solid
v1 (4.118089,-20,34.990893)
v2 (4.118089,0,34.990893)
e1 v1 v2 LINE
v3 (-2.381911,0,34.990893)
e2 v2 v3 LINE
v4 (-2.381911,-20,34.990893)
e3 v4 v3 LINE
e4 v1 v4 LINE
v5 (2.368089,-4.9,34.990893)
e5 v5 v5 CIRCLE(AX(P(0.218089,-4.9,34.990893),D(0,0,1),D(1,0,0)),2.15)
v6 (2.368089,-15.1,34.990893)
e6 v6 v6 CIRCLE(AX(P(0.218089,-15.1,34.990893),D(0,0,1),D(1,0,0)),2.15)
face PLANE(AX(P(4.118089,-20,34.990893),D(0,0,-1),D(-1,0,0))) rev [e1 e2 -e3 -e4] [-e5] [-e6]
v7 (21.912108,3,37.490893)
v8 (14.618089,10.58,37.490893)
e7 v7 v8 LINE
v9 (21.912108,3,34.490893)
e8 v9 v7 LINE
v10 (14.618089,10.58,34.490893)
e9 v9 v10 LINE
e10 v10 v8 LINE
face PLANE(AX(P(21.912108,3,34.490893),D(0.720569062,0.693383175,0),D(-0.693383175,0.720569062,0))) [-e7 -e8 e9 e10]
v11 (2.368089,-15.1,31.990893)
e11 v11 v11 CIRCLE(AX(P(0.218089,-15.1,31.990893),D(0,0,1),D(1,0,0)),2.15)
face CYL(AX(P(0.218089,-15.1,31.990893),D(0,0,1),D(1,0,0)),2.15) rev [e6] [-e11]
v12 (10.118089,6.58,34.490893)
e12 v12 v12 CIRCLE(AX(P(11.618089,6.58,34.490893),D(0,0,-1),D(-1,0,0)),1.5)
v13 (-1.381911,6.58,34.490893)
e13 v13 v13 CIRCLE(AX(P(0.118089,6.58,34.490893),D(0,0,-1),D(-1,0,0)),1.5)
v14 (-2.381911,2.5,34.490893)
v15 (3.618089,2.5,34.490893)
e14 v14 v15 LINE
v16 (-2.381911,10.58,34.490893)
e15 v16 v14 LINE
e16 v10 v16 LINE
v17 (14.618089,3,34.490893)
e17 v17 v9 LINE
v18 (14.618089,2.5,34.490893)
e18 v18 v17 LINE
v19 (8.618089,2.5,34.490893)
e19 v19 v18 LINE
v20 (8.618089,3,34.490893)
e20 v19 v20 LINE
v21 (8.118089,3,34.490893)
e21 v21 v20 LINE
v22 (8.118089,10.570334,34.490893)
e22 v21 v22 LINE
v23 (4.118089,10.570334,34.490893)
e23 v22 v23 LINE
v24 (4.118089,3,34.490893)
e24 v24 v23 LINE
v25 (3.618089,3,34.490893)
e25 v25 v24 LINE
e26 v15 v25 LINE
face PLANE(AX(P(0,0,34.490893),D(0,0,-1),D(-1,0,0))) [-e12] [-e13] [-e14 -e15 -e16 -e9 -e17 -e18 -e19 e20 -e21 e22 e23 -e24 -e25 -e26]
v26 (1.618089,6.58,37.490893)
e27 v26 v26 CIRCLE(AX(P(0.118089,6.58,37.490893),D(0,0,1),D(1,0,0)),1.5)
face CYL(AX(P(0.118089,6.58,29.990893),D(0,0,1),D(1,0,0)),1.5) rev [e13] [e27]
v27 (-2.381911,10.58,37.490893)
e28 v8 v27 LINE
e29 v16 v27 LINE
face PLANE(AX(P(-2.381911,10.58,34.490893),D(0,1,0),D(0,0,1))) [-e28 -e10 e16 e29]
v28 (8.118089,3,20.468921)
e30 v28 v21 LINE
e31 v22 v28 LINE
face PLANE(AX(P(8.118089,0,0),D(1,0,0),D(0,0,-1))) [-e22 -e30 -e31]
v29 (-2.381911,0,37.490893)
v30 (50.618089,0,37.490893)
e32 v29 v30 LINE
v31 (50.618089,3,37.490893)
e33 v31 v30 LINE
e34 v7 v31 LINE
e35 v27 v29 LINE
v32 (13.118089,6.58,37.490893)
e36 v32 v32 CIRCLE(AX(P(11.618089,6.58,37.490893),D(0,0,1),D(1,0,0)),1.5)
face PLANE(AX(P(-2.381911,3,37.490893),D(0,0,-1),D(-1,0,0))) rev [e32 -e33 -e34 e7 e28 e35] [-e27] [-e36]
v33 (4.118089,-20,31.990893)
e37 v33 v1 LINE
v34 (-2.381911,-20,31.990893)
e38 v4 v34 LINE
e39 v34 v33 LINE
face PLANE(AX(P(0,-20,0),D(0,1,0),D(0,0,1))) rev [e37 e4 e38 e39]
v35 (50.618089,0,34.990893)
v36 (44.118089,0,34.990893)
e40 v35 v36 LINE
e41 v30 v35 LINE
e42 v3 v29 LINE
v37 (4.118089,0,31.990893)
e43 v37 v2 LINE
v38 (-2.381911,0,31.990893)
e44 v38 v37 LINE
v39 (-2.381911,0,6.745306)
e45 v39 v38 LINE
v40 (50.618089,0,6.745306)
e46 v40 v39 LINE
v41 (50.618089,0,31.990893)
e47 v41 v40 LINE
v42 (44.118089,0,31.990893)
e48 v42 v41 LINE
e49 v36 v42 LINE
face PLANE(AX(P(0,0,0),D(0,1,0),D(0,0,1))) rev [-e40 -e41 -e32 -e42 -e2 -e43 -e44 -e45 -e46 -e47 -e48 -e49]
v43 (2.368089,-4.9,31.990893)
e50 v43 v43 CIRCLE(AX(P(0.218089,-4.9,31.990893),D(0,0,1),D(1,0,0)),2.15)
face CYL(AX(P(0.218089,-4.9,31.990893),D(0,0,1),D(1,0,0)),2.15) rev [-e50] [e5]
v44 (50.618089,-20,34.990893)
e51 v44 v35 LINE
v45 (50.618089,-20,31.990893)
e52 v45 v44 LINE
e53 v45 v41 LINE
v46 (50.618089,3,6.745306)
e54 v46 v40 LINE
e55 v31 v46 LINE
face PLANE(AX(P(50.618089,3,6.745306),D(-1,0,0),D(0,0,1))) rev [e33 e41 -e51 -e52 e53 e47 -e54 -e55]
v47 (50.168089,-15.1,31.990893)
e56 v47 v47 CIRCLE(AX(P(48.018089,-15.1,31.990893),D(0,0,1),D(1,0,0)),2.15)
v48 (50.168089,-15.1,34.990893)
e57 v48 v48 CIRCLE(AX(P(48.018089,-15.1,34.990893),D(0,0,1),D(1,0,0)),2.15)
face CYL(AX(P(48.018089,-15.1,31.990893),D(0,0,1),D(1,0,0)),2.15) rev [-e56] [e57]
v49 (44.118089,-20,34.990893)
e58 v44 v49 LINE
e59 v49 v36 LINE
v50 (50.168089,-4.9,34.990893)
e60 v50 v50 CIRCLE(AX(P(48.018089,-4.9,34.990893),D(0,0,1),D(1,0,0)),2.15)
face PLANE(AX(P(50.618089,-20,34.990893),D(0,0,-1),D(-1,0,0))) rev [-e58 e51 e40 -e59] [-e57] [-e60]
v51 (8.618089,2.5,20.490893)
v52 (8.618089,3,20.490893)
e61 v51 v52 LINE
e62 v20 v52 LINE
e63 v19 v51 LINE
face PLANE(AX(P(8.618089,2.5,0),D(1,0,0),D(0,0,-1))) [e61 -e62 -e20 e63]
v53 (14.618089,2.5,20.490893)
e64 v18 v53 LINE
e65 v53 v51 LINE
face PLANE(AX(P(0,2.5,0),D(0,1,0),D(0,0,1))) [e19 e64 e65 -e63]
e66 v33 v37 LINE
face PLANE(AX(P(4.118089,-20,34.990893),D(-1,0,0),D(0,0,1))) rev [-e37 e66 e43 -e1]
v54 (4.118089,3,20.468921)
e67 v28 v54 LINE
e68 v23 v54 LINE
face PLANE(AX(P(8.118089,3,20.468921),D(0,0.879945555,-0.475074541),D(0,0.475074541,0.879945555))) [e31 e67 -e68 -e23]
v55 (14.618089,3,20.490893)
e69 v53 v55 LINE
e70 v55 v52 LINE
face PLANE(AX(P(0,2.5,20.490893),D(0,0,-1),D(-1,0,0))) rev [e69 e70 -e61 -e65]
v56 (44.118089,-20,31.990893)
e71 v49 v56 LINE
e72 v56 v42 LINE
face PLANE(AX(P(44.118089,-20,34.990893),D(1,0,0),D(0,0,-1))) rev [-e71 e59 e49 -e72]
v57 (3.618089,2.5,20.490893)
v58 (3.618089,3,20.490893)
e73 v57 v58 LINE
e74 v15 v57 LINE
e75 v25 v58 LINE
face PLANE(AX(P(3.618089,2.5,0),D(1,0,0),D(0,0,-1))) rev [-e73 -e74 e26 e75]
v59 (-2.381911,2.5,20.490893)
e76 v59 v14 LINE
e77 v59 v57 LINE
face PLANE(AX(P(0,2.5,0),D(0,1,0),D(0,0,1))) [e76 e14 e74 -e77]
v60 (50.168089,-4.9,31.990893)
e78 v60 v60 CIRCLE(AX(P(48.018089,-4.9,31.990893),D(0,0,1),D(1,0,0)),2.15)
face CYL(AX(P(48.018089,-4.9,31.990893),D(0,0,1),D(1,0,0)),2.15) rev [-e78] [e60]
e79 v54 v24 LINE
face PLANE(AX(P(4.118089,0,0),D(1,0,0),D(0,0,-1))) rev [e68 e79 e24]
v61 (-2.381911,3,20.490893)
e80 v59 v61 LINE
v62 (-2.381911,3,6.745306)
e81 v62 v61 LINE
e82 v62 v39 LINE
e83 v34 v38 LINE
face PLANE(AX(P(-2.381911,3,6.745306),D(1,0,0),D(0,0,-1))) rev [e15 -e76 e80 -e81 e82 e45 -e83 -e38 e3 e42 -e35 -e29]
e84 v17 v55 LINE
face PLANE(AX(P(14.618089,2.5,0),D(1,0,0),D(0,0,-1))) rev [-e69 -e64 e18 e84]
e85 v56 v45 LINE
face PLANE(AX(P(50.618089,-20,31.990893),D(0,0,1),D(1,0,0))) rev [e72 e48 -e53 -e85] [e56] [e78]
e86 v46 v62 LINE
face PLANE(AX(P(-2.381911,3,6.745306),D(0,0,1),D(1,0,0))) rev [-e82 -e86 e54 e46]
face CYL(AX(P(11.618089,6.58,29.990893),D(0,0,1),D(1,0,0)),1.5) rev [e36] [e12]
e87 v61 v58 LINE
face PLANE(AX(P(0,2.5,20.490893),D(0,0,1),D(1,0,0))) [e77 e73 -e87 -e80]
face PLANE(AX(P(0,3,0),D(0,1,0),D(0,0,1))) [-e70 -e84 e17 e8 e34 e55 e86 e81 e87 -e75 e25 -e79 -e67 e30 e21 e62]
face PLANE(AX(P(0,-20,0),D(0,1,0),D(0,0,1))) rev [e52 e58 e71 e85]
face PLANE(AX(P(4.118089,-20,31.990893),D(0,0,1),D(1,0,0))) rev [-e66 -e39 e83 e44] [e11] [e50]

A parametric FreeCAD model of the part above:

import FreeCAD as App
import Part
import Sketcher
from FreeCAD import Vector
Q = App.Units.Quantity


def add_polygon(sketch, points):
    """Adds a closed chain of lines whose ends are joined by coincident constraints."""
    first, n = sketch.GeometryCount, len(points)
    for a, b in zip(points, points[1:] + points[:1]):
        sketch.addGeometry(Part.LineSegment(App.Vector(*a, 0), App.Vector(*b, 0)), False)
    for i in range(n):
        sketch.addConstraint(Sketcher.Constraint("Coincident", first + i, 2, first + (i + 1) % n, 1))

doc = App.newDocument("Part")
params = doc.addObject("Spreadsheet::Sheet", "Params")
for row, (alias, value) in enumerate([
    ("sketch1_width", "53 mm"),
    ("pad1_length", "3 mm"),
    ("sketch2_height", "3 mm"),
    ("sketch2_width", "6.5 mm"),
    ("pad2_length", "20 mm"),
    ("sketch3_diameter", "4.3 mm"),
    ("pocket1_length", "3 mm"),
    ("sketch4_width", "17 mm"),
    ("sketch4_height", "7.58 mm"),
    ("pad3_length", "3 mm"),
    ("sketch5_diameter", "3 mm"),
    ("pocket2_length", "7.5 mm"),
    ("sketch6_width", "6 mm"),
    ("sketch6_height", "14 mm"),
    ("pocket3_length", "0.5 mm"),
    ("pad4_length", "2 mm"),
    ("pad4_length2", "2 mm"),
    ("sketch8_height", "7.58 mm"),
    ("pad5_length", "3 mm"),
], start=1):
    params.set(f"A{row}", alias)
    params.set(f"B{row}", "=" + value)
    params.setAlias(f"B{row}", alias)

body = doc.addObject("PartDesign::Body", "Body")

sketch1 = body.newObject("Sketcher::SketchObject", "Sketch")
sketch1.AttachmentSupport = (doc.getObject("XZ_Plane"), [""])
sketch1.MapMode = "FlatFace"
add_polygon(sketch1, [(-2.381911, 6.745306), (-2.381911, 37.490893), (50.618089, 37.490893), (50.618089, 6.745306)])
sketch1.addConstraint([
    Sketcher.Constraint("Vertical", 0),
    Sketcher.Constraint("Horizontal", 1),
    Sketcher.Constraint("Vertical", 2),
    Sketcher.Constraint("Horizontal", 3),
    Sketcher.Constraint("DistanceX", 1, 1, 1, 2, Q("53 mm")),
    Sketcher.Constraint("DistanceY", 0, 1, 0, 2, Q("30.745586 mm")),
    Sketcher.Constraint("DistanceX", 0, 2, -1, 1, Q("2.381911 mm")),
    Sketcher.Constraint("DistanceY", -1, 1, 0, 2, Q("37.490893 mm")),
])
sketch1.setExpression("Constraints[8]", "Params.sketch1_width")
pad1 = body.newObject("PartDesign::Pad", "Pad")
pad1.Profile = sketch1
pad1.setExpression("Length", "Params.pad1_length")
pad1.Reversed = True

sketch2 = body.newObject("Sketcher::SketchObject", "Sketch001")
sketch2.AttachmentSupport = (doc.getObject("XZ_Plane"), [""])
sketch2.MapMode = "FlatFace"
add_polygon(sketch2, [(44.118089, 34.990893), (44.118089, 31.990893), (50.618089, 31.990893), (50.618089, 34.990893)])
add_polygon(sketch2, [(-2.381911, 34.990893), (-2.381911, 31.990893), (4.118089, 31.990893), (4.118089, 34.990893)])
sketch2.addConstraint([
    Sketcher.Constraint("Vertical", 0),
    Sketcher.Constraint("Horizontal", 1),
    Sketcher.Constraint("Vertical", 2),
    Sketcher.Constraint("Horizontal", 3),
    Sketcher.Constraint("Vertical", 4),
    Sketcher.Constraint("Horizontal", 5),
    Sketcher.Constraint("Vertical", 6),
    Sketcher.Constraint("Horizontal", 7),
    Sketcher.Constraint("Horizontal", 1, 2, 4, 2),
    Sketcher.Constraint("Horizontal", 3, 2, 6, 2),
    Sketcher.Constraint("Equal", 3, 5),
    Sketcher.Constraint("DistanceY", 0, 2, 0, 1, Q("3 mm")),
    Sketcher.Constraint("DistanceX", 1, 1, 1, 2, Q("6.5 mm")),
    Sketcher.Constraint("DistanceX", 4, 2, 1, 2, Q("53 mm")),
    Sketcher.Constraint("DistanceX", -1, 1, 0, 2, Q("44.118089 mm")),
    Sketcher.Constraint("DistanceY", -1, 1, 0, 2, Q("31.990893 mm")),
])
sketch2.setExpression("Constraints[19]", "Params.sketch2_height")
sketch2.setExpression("Constraints[20]", "Params.sketch2_width")
pad2 = body.newObject("PartDesign::Pad", "Pad001")
pad2.Profile = sketch2
pad2.setExpression("Length", "Params.pad2_length")

sketch3 = body.newObject("Sketcher::SketchObject", "Sketch002")
sketch3.AttachmentSupport = (doc.getObject("XY_Plane"), [""])
sketch3.MapMode = "FlatFace"
sketch3.AttachmentOffset = App.Placement(Vector(0, 0, 34.990893), App.Rotation())
sketch3.addGeometry([
    Part.Circle(Vector(48.018089, -15.1, 0), Vector(0, 0, 1), 2.15),
    Part.Circle(Vector(48.018089, -4.9, 0), Vector(0, 0, 1), 2.15),
    Part.Circle(Vector(0.218089, -15.1, 0), Vector(0, 0, 1), 2.15),
    Part.Circle(Vector(0.218089, -4.9, 0), Vector(0, 0, 1), 2.15),
], False)
sketch3.addConstraint([
    Sketcher.Constraint("Equal", 0, 1),
    Sketcher.Constraint("Equal", 1, 2),
    Sketcher.Constraint("Equal", 2, 3),
    Sketcher.Constraint("Horizontal", 0, 3, 2, 3),
    Sketcher.Constraint("Horizontal", 1, 3, 3, 3),
    Sketcher.Constraint("Vertical", 0, 3, 1, 3),
    Sketcher.Constraint("Vertical", 2, 3, 3, 3),
    Sketcher.Constraint("Diameter", 0, Q("4.3 mm")),
    Sketcher.Constraint("DistanceY", 0, 3, -1, 1, Q("15.1 mm")),
    Sketcher.Constraint("DistanceY", 1, 3, -1, 1, Q("4.9 mm")),
    Sketcher.Constraint("DistanceX", 2, 3, 0, 3, Q("47.8 mm")),
    Sketcher.Constraint("DistanceX", -1, 1, 0, 3, Q("48.018089 mm")),
])
sketch3.setExpression("Constraints[7]", "Params.sketch3_diameter")
pocket1 = body.newObject("PartDesign::Pocket", "Pocket")
pocket1.Profile = sketch3
pocket1.setExpression("Length", "Params.pocket1_length")

sketch4 = body.newObject("Sketcher::SketchObject", "Sketch003")
sketch4.AttachmentSupport = (doc.getObject("XY_Plane"), [""])
sketch4.MapMode = "FlatFace"
sketch4.AttachmentOffset = App.Placement(Vector(0, 0, 37.490893), App.Rotation())
add_polygon(sketch4, [(-2.381911, 10.58), (-2.381911, 3), (14.618089, 3), (14.618089, 10.58)])
sketch4.addConstraint([
    Sketcher.Constraint("Vertical", 0),
    Sketcher.Constraint("Horizontal", 1),
    Sketcher.Constraint("Vertical", 2),
    Sketcher.Constraint("Horizontal", 3),
    Sketcher.Constraint("DistanceX", 1, 1, 1, 2, Q("17 mm")),
    Sketcher.Constraint("DistanceY", -1, 1, 0, 2, Q("3 mm")),
    Sketcher.Constraint("DistanceY", 0, 2, 0, 1, Q("7.58 mm")),
    Sketcher.Constraint("DistanceX", 0, 2, -1, 1, Q("2.381911 mm")),
])
sketch4.setExpression("Constraints[8]", "Params.sketch4_width")
sketch4.setExpression("Constraints[10]", "Params.sketch4_height")
pad3 = body.newObject("PartDesign::Pad", "Pad002")
pad3.Profile = sketch4
pad3.setExpression("Length", "Params.pad3_length")
pad3.Reversed = True

sketch5 = body.newObject("Sketcher::SketchObject", "Sketch004")
sketch5.AttachmentSupport = (doc.getObject("XY_Plane"), [""])
sketch5.MapMode = "FlatFace"
sketch5.AttachmentOffset = App.Placement(Vector(0, 0, 37.490893), App.Rotation())
sketch5.addGeometry([
    Part.Circle(Vector(0.118089, 6.58, 0), Vector(0, 0, 1), 1.5),
    Part.Circle(Vector(11.618089, 6.58, 0), Vector(0, 0, 1), 1.5),
], False)
sketch5.addConstraint([
    Sketcher.Constraint("Equal", 0, 1),
    Sketcher.Constraint("Horizontal", 0, 3, 1, 3),
    Sketcher.Constraint("Diameter", 0, Q("3 mm")),
    Sketcher.Constraint("DistanceX", 0, 3, 1, 3, Q("11.5 mm")),
    Sketcher.Constraint("DistanceY", -1, 1, 0, 3, Q("6.58 mm")),
    Sketcher.Constraint("DistanceX", -1, 1, 0, 3, Q("0.118089 mm")),
])
sketch5.setExpression("Constraints[2]", "Params.sketch5_diameter")
pocket2 = body.newObject("PartDesign::Pocket", "Pocket001")
pocket2.Profile = sketch5
pocket2.setExpression("Length", "Params.pocket2_length")

sketch6 = body.newObject("Sketcher::SketchObject", "Sketch005")
sketch6.AttachmentSupport = (doc.getObject("XZ_Plane"), [""])
sketch6.MapMode = "FlatFace"
sketch6.AttachmentOffset = App.Placement(Vector(0, 0, -3), App.Rotation())
add_polygon(sketch6, [(8.618089, 20.490893), (8.618089, 34.490893), (14.618089, 34.490893), (14.618089, 20.490893)])
add_polygon(sketch6, [(-2.381911, 20.490893), (-2.381911, 34.490893), (3.618089, 34.490893), (3.618089, 20.490893)])
sketch6.addConstraint([
    Sketcher.Constraint("Vertical", 0),
    Sketcher.Constraint("Horizontal", 1),
    Sketcher.Constraint("Vertical", 2),
    Sketcher.Constraint("Horizontal", 3),
    Sketcher.Constraint("Vertical", 4),
    Sketcher.Constraint("Horizontal", 5),
    Sketcher.Constraint("Vertical", 6),
    Sketcher.Constraint("Horizontal", 7),
    Sketcher.Constraint("Horizontal", 1, 2, 4, 2),
    Sketcher.Constraint("Horizontal", 3, 2, 6, 2),
    Sketcher.Constraint("Equal", 3, 5),
    Sketcher.Constraint("DistanceX", 1, 1, 1, 2, Q("6 mm")),
    Sketcher.Constraint("DistanceY", 0, 1, 0, 2, Q("14 mm")),
    Sketcher.Constraint("DistanceX", 4, 2, 0, 2, Q("11 mm")),
    Sketcher.Constraint("DistanceX", -1, 1, 0, 2, Q("8.618089 mm")),
    Sketcher.Constraint("DistanceY", -1, 1, 0, 2, Q("34.490893 mm")),
])
sketch6.setExpression("Constraints[19]", "Params.sketch6_width")
sketch6.setExpression("Constraints[20]", "Params.sketch6_height")
pocket3 = body.newObject("PartDesign::Pocket", "Pocket002")
pocket3.Profile = sketch6
pocket3.setExpression("Length", "Params.pocket3_length")
pocket3.Reversed = True

sketch7 = body.newObject("Sketcher::SketchObject", "Sketch006")
sketch7.AttachmentSupport = (doc.getObject("YZ_Plane"), [""])
sketch7.MapMode = "FlatFace"
sketch7.AttachmentOffset = App.Placement(Vector(0, 0, 6.118089), App.Rotation())
add_polygon(sketch7, [(3, 34.490893), (10.570334, 34.490893), (3, 20.468921)])
sketch7.addConstraint([
    Sketcher.Constraint("Horizontal", 0),
    Sketcher.Constraint("Vertical", 2),
    Sketcher.Constraint("DistanceX", -1, 1, 1, 2, Q("3 mm")),
    Sketcher.Constraint("DistanceY", 2, 1, 2, 2, Q("14.021972 mm")),
    Sketcher.Constraint("DistanceX", 0, 1, 0, 2, Q("7.570334 mm")),
    Sketcher.Constraint("DistanceY", -1, 1, 1, 2, Q("20.468921 mm")),
])
pad4 = body.newObject("PartDesign::Pad", "Pad003")
pad4.Profile = sketch7
pad4.Type = "TwoLengths"
pad4.setExpression("Length", "Params.pad4_length")
pad4.setExpression("Length2", "Params.pad4_length2")
pad4.Reversed = True

sketch8 = body.newObject("Sketcher::SketchObject", "Sketch007")
sketch8.AttachmentSupport = (doc.getObject("XY_Plane"), [""])
sketch8.MapMode = "FlatFace"
sketch8.AttachmentOffset = App.Placement(Vector(0, 0, 37.490893), App.Rotation())
add_polygon(sketch8, [(14.618089, 10.58), (14.618089, 3), (21.912108, 3)])
sketch8.addConstraint([
    Sketcher.Constraint("Vertical", 0),
    Sketcher.Constraint("Horizontal", 1),
    Sketcher.Constraint("DistanceY", -1, 1, 0, 2, Q("3 mm")),
    Sketcher.Constraint("DistanceY", 0, 2, 0, 1, Q("7.58 mm")),
    Sketcher.Constraint("DistanceX", 1, 1, 1, 2, Q("7.294019 mm")),
    Sketcher.Constraint("DistanceX", -1, 1, 0, 2, Q("14.618089 mm")),
])
sketch8.setExpression("Constraints[6]", "Params.sketch8_height")
pad5 = body.newObject("PartDesign::Pad", "Pad004")
pad5.Profile = sketch8
pad5.setExpression("Length", "Params.pad5_length")
pad5.Reversed = True

doc.recompute()
